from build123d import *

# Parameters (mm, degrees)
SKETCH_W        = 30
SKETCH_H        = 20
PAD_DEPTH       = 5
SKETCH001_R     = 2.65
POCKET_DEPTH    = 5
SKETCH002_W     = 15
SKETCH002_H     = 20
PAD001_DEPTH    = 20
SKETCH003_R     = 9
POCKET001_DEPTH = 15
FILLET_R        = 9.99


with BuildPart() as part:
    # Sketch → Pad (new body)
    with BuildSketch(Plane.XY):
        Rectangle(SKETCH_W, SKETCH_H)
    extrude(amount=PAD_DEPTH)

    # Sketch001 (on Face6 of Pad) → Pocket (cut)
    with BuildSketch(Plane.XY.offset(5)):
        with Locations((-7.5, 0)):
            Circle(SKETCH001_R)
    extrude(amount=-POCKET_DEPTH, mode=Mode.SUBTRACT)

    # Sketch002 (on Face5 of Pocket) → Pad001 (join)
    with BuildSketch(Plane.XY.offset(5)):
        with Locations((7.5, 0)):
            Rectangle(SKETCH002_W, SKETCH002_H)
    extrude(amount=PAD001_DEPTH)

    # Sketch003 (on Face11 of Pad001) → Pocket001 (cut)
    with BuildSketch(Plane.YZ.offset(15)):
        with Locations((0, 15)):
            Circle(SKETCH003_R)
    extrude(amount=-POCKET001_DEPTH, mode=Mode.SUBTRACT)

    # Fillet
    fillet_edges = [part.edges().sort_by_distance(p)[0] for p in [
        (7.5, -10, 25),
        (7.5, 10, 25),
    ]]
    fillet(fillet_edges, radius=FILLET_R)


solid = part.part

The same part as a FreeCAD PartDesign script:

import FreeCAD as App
import Part
import Sketcher
from FreeCAD import Vector
Q = App.Units.Quantity


def edges_at(feature, points):
    """Names of the edges that pass closest to the given points."""
    edges = feature.Shape.Edges
    near = lambda p: min(range(len(edges)), key=lambda i: edges[i].distToShape(Part.Vertex(*p))[0])
    return sorted({f"Edge{near(p) + 1}" for p in points})

doc = App.newDocument("Part")
body = doc.addObject("PartDesign::Body", "Body")

sketch1 = doc.addObject("Sketcher::SketchObject", "Sketch")
body.addObject(sketch1)
sketch1.AttachmentSupport = (doc.XY_Plane, [""])
sketch1.MapMode = "FlatFace"
sketch1.addGeometry([
    Part.LineSegment(Vector(-15, 10, 0), Vector(-15, -10, 0)),
    Part.LineSegment(Vector(-15, -10, 0), Vector(15, -10, 0)),
    Part.LineSegment(Vector(15, -10, 0), Vector(15, 10, 0)),
    Part.LineSegment(Vector(15, 10, 0), Vector(-15, 10, 0)),
], False)
sketch1.addConstraint([
    Sketcher.Constraint("Coincident", 0, 2, 1, 1),
    Sketcher.Constraint("Coincident", 1, 2, 2, 1),
    Sketcher.Constraint("Coincident", 2, 2, 3, 1),
    Sketcher.Constraint("Coincident", 3, 2, 0, 1),
    Sketcher.Constraint("Vertical", 0),
    Sketcher.Constraint("Horizontal", 1),
    Sketcher.Constraint("Vertical", 2),
    Sketcher.Constraint("Horizontal", 3),
    Sketcher.Constraint("Symmetric", 0, 2, 2, 2, -1, 1),
    Sketcher.Constraint("DistanceX", 1, 1, 1, 2, Q("30 mm")),
    Sketcher.Constraint("DistanceY", 0, 2, 0, 1, Q("20 mm")),
])
pad1 = doc.addObject("PartDesign::Pad", "Pad")
body.addObject(pad1)
pad1.Profile = sketch1
pad1.Length = 5

sketch2 = doc.addObject("Sketcher::SketchObject", "Sketch001")
body.addObject(sketch2)
sketch2.AttachmentSupport = (doc.XY_Plane, [""])
sketch2.MapMode = "FlatFace"
sketch2.AttachmentOffset = App.Placement(Vector(0, 0, 5), App.Rotation())
sketch2.addGeometry(Part.Circle(Vector(-7.5, 0, 0), Vector(0, 0, 1), 2.6), False)
sketch2.addConstraint([
    Sketcher.Constraint("PointOnObject", 0, 3, -1),
    Sketcher.Constraint("Diameter", 0, Q("5.3 mm")),
    Sketcher.Constraint("DistanceX", 0, 3, -1, 1, Q("7.5 mm")),
])
pocket1 = doc.addObject("PartDesign::Pocket", "Pocket")
body.addObject(pocket1)
pocket1.Profile = sketch2
pocket1.Length = 5

sketch3 = doc.addObject("Sketcher::SketchObject", "Sketch002")
body.addObject(sketch3)
sketch3.AttachmentSupport = (doc.XY_Plane, [""])
sketch3.MapMode = "FlatFace"
sketch3.AttachmentOffset = App.Placement(Vector(0, 0, 5), App.Rotation())
sketch3.addGeometry([
    Part.LineSegment(Vector(0, 10, 0), Vector(0, -10, 0)),
    Part.LineSegment(Vector(0, -10, 0), Vector(15, -10, 0)),
    Part.LineSegment(Vector(15, -10, 0), Vector(15, 10, 0)),
    Part.LineSegment(Vector(15, 10, 0), Vector(0, 10, 0)),
], False)
sketch3.addConstraint([
    Sketcher.Constraint("Coincident", 0, 2, 1, 1),
    Sketcher.Constraint("Coincident", 1, 2, 2, 1),
    Sketcher.Constraint("Coincident", 2, 2, 3, 1),
    Sketcher.Constraint("Coincident", 3, 2, 0, 1),
    Sketcher.Constraint("Vertical", 0),
    Sketcher.Constraint("Horizontal", 1),
    Sketcher.Constraint("Vertical", 2),
    Sketcher.Constraint("Horizontal", 3),
    Sketcher.Constraint("Symmetric", 0, 2, 3, 2, -1, 1),
    Sketcher.Constraint("DistanceX", 1, 1, 1, 2, Q("15 mm")),
    Sketcher.Constraint("DistanceY", 0, 2, 0, 1, Q("20 mm")),
])
pad2 = doc.addObject("PartDesign::Pad", "Pad001")
body.addObject(pad2)
pad2.Profile = sketch3
pad2.Length = 20

sketch4 = doc.addObject("Sketcher::SketchObject", "Sketch003")
body.addObject(sketch4)
sketch4.AttachmentSupport = (doc.YZ_Plane, [""])
sketch4.MapMode = "FlatFace"
sketch4.AttachmentOffset = App.Placement(Vector(0, 0, 15), App.Rotation())
sketch4.addGeometry(Part.Circle(Vector(0, 15, 0), Vector(0, 0, 1), 9), False)
sketch4.addConstraint([
    Sketcher.Constraint("PointOnObject", 0, 3, -2),
    Sketcher.Constraint("Diameter", 0, Q("18 mm")),
    Sketcher.Constraint("DistanceY", -1, 1, 0, 3, Q("15 mm")),
])
pocket2 = doc.addObject("PartDesign::Pocket", "Pocket001")
body.addObject(pocket2)
pocket2.Profile = sketch4
pocket2.Length = 15
doc.recompute()

fillet = doc.addObject("PartDesign::Fillet", "Fillet")
body.addObject(fillet)
fillet.Base = (pocket2, edges_at(pocket2, [(7.5, -10, 25), (7.5, 10, 25)]))
fillet.Radius = 9.99

doc.recompute()
